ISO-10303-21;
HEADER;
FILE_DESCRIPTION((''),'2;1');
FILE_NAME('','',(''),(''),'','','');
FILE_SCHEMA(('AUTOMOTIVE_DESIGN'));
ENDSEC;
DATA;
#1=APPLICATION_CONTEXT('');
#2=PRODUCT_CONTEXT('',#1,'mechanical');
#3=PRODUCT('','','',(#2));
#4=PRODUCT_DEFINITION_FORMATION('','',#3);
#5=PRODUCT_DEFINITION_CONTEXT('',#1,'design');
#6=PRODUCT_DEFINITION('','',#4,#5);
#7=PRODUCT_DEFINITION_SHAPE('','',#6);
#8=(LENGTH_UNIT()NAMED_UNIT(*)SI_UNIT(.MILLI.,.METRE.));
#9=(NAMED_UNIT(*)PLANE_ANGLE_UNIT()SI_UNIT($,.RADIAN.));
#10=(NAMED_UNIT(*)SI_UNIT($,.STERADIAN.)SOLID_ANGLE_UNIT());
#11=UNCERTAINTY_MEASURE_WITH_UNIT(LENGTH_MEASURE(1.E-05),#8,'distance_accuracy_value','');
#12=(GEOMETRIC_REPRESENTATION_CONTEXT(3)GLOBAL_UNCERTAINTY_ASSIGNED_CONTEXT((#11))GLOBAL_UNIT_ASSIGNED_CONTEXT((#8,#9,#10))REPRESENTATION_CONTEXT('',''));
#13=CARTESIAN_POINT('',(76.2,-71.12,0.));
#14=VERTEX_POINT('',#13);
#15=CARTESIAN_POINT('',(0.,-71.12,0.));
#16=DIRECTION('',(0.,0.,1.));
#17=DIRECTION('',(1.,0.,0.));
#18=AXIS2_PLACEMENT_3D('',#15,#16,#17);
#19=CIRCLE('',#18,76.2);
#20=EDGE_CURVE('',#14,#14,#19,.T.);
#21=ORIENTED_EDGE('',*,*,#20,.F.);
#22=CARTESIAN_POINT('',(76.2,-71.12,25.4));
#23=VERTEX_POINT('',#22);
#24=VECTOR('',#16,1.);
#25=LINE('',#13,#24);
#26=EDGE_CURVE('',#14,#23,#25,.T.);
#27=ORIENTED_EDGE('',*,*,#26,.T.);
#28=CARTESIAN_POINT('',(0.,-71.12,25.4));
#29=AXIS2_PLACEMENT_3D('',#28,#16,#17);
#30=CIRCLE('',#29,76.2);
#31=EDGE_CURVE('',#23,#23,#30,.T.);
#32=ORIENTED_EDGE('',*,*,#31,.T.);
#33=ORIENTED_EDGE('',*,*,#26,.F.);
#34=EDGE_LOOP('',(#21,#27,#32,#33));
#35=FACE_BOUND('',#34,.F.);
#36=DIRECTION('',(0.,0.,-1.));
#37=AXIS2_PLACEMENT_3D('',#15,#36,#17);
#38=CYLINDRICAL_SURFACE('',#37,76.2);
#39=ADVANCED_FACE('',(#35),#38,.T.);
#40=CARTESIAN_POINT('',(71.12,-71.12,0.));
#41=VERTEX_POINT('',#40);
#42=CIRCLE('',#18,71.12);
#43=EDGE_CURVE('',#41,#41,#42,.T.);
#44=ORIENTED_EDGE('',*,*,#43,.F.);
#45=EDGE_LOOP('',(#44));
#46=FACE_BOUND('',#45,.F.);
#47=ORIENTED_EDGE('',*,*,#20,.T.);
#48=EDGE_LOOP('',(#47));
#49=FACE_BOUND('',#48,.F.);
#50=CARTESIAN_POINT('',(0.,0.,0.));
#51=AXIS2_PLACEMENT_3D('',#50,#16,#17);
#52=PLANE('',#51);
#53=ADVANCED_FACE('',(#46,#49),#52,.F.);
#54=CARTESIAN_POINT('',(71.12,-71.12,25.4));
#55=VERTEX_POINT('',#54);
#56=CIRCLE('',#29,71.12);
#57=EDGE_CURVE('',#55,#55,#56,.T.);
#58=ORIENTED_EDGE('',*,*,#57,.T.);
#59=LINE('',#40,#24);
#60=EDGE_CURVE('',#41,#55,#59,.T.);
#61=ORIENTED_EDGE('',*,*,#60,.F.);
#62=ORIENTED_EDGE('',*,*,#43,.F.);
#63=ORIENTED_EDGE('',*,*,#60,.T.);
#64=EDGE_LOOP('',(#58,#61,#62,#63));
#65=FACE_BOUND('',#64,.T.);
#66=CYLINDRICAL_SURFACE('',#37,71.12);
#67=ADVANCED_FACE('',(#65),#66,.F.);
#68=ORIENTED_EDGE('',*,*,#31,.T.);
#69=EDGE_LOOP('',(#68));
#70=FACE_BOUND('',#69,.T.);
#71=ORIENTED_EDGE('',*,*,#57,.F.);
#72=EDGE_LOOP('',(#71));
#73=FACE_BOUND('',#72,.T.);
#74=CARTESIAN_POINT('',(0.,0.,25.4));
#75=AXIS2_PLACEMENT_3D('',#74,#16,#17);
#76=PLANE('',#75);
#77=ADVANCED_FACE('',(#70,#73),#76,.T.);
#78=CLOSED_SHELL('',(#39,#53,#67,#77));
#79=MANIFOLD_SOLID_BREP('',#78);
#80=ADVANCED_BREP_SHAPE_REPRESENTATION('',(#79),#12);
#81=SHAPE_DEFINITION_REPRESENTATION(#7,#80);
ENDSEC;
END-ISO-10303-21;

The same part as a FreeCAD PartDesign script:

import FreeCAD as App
import Part
import Sketcher

V = App.Vector
Q = App.Units.Quantity

doc = App.newDocument("Part")
body = doc.addObject("PartDesign::Body", "Body")

# Sketch on XY plane
sketch1 = body.newObject("Sketcher::SketchObject", "Sketch")
sketch1.AttachmentSupport = (doc.getObject("XY_Plane"), [""])
sketch1.MapMode = "FlatFace"
sketch1.addGeometry([
    Part.Circle(V(0, -71.12, 0), V(0, 0, 1), 76.2),
    Part.Circle(V(0, -71.12, 0), V(0, 0, 1), 71.12),
], False)
sketch1.addConstraint([
    Sketcher.Constraint("Coincident", 1, 3, 0, 3),
    Sketcher.Constraint("PointOnObject", 0, 3, -2),
    Sketcher.Constraint("Diameter", 0, Q("6 in")),
    Sketcher.Constraint("Diameter", 1, Q("5.6 in")),
    Sketcher.Constraint("DistanceY", 0, 3, -1, 1, Q("2.8 in")),
])
pad1 = body.newObject("PartDesign::Pad", "Pad")
pad1.Profile = sketch1
pad1.Length = Q("1 in")

doc.recompute()
